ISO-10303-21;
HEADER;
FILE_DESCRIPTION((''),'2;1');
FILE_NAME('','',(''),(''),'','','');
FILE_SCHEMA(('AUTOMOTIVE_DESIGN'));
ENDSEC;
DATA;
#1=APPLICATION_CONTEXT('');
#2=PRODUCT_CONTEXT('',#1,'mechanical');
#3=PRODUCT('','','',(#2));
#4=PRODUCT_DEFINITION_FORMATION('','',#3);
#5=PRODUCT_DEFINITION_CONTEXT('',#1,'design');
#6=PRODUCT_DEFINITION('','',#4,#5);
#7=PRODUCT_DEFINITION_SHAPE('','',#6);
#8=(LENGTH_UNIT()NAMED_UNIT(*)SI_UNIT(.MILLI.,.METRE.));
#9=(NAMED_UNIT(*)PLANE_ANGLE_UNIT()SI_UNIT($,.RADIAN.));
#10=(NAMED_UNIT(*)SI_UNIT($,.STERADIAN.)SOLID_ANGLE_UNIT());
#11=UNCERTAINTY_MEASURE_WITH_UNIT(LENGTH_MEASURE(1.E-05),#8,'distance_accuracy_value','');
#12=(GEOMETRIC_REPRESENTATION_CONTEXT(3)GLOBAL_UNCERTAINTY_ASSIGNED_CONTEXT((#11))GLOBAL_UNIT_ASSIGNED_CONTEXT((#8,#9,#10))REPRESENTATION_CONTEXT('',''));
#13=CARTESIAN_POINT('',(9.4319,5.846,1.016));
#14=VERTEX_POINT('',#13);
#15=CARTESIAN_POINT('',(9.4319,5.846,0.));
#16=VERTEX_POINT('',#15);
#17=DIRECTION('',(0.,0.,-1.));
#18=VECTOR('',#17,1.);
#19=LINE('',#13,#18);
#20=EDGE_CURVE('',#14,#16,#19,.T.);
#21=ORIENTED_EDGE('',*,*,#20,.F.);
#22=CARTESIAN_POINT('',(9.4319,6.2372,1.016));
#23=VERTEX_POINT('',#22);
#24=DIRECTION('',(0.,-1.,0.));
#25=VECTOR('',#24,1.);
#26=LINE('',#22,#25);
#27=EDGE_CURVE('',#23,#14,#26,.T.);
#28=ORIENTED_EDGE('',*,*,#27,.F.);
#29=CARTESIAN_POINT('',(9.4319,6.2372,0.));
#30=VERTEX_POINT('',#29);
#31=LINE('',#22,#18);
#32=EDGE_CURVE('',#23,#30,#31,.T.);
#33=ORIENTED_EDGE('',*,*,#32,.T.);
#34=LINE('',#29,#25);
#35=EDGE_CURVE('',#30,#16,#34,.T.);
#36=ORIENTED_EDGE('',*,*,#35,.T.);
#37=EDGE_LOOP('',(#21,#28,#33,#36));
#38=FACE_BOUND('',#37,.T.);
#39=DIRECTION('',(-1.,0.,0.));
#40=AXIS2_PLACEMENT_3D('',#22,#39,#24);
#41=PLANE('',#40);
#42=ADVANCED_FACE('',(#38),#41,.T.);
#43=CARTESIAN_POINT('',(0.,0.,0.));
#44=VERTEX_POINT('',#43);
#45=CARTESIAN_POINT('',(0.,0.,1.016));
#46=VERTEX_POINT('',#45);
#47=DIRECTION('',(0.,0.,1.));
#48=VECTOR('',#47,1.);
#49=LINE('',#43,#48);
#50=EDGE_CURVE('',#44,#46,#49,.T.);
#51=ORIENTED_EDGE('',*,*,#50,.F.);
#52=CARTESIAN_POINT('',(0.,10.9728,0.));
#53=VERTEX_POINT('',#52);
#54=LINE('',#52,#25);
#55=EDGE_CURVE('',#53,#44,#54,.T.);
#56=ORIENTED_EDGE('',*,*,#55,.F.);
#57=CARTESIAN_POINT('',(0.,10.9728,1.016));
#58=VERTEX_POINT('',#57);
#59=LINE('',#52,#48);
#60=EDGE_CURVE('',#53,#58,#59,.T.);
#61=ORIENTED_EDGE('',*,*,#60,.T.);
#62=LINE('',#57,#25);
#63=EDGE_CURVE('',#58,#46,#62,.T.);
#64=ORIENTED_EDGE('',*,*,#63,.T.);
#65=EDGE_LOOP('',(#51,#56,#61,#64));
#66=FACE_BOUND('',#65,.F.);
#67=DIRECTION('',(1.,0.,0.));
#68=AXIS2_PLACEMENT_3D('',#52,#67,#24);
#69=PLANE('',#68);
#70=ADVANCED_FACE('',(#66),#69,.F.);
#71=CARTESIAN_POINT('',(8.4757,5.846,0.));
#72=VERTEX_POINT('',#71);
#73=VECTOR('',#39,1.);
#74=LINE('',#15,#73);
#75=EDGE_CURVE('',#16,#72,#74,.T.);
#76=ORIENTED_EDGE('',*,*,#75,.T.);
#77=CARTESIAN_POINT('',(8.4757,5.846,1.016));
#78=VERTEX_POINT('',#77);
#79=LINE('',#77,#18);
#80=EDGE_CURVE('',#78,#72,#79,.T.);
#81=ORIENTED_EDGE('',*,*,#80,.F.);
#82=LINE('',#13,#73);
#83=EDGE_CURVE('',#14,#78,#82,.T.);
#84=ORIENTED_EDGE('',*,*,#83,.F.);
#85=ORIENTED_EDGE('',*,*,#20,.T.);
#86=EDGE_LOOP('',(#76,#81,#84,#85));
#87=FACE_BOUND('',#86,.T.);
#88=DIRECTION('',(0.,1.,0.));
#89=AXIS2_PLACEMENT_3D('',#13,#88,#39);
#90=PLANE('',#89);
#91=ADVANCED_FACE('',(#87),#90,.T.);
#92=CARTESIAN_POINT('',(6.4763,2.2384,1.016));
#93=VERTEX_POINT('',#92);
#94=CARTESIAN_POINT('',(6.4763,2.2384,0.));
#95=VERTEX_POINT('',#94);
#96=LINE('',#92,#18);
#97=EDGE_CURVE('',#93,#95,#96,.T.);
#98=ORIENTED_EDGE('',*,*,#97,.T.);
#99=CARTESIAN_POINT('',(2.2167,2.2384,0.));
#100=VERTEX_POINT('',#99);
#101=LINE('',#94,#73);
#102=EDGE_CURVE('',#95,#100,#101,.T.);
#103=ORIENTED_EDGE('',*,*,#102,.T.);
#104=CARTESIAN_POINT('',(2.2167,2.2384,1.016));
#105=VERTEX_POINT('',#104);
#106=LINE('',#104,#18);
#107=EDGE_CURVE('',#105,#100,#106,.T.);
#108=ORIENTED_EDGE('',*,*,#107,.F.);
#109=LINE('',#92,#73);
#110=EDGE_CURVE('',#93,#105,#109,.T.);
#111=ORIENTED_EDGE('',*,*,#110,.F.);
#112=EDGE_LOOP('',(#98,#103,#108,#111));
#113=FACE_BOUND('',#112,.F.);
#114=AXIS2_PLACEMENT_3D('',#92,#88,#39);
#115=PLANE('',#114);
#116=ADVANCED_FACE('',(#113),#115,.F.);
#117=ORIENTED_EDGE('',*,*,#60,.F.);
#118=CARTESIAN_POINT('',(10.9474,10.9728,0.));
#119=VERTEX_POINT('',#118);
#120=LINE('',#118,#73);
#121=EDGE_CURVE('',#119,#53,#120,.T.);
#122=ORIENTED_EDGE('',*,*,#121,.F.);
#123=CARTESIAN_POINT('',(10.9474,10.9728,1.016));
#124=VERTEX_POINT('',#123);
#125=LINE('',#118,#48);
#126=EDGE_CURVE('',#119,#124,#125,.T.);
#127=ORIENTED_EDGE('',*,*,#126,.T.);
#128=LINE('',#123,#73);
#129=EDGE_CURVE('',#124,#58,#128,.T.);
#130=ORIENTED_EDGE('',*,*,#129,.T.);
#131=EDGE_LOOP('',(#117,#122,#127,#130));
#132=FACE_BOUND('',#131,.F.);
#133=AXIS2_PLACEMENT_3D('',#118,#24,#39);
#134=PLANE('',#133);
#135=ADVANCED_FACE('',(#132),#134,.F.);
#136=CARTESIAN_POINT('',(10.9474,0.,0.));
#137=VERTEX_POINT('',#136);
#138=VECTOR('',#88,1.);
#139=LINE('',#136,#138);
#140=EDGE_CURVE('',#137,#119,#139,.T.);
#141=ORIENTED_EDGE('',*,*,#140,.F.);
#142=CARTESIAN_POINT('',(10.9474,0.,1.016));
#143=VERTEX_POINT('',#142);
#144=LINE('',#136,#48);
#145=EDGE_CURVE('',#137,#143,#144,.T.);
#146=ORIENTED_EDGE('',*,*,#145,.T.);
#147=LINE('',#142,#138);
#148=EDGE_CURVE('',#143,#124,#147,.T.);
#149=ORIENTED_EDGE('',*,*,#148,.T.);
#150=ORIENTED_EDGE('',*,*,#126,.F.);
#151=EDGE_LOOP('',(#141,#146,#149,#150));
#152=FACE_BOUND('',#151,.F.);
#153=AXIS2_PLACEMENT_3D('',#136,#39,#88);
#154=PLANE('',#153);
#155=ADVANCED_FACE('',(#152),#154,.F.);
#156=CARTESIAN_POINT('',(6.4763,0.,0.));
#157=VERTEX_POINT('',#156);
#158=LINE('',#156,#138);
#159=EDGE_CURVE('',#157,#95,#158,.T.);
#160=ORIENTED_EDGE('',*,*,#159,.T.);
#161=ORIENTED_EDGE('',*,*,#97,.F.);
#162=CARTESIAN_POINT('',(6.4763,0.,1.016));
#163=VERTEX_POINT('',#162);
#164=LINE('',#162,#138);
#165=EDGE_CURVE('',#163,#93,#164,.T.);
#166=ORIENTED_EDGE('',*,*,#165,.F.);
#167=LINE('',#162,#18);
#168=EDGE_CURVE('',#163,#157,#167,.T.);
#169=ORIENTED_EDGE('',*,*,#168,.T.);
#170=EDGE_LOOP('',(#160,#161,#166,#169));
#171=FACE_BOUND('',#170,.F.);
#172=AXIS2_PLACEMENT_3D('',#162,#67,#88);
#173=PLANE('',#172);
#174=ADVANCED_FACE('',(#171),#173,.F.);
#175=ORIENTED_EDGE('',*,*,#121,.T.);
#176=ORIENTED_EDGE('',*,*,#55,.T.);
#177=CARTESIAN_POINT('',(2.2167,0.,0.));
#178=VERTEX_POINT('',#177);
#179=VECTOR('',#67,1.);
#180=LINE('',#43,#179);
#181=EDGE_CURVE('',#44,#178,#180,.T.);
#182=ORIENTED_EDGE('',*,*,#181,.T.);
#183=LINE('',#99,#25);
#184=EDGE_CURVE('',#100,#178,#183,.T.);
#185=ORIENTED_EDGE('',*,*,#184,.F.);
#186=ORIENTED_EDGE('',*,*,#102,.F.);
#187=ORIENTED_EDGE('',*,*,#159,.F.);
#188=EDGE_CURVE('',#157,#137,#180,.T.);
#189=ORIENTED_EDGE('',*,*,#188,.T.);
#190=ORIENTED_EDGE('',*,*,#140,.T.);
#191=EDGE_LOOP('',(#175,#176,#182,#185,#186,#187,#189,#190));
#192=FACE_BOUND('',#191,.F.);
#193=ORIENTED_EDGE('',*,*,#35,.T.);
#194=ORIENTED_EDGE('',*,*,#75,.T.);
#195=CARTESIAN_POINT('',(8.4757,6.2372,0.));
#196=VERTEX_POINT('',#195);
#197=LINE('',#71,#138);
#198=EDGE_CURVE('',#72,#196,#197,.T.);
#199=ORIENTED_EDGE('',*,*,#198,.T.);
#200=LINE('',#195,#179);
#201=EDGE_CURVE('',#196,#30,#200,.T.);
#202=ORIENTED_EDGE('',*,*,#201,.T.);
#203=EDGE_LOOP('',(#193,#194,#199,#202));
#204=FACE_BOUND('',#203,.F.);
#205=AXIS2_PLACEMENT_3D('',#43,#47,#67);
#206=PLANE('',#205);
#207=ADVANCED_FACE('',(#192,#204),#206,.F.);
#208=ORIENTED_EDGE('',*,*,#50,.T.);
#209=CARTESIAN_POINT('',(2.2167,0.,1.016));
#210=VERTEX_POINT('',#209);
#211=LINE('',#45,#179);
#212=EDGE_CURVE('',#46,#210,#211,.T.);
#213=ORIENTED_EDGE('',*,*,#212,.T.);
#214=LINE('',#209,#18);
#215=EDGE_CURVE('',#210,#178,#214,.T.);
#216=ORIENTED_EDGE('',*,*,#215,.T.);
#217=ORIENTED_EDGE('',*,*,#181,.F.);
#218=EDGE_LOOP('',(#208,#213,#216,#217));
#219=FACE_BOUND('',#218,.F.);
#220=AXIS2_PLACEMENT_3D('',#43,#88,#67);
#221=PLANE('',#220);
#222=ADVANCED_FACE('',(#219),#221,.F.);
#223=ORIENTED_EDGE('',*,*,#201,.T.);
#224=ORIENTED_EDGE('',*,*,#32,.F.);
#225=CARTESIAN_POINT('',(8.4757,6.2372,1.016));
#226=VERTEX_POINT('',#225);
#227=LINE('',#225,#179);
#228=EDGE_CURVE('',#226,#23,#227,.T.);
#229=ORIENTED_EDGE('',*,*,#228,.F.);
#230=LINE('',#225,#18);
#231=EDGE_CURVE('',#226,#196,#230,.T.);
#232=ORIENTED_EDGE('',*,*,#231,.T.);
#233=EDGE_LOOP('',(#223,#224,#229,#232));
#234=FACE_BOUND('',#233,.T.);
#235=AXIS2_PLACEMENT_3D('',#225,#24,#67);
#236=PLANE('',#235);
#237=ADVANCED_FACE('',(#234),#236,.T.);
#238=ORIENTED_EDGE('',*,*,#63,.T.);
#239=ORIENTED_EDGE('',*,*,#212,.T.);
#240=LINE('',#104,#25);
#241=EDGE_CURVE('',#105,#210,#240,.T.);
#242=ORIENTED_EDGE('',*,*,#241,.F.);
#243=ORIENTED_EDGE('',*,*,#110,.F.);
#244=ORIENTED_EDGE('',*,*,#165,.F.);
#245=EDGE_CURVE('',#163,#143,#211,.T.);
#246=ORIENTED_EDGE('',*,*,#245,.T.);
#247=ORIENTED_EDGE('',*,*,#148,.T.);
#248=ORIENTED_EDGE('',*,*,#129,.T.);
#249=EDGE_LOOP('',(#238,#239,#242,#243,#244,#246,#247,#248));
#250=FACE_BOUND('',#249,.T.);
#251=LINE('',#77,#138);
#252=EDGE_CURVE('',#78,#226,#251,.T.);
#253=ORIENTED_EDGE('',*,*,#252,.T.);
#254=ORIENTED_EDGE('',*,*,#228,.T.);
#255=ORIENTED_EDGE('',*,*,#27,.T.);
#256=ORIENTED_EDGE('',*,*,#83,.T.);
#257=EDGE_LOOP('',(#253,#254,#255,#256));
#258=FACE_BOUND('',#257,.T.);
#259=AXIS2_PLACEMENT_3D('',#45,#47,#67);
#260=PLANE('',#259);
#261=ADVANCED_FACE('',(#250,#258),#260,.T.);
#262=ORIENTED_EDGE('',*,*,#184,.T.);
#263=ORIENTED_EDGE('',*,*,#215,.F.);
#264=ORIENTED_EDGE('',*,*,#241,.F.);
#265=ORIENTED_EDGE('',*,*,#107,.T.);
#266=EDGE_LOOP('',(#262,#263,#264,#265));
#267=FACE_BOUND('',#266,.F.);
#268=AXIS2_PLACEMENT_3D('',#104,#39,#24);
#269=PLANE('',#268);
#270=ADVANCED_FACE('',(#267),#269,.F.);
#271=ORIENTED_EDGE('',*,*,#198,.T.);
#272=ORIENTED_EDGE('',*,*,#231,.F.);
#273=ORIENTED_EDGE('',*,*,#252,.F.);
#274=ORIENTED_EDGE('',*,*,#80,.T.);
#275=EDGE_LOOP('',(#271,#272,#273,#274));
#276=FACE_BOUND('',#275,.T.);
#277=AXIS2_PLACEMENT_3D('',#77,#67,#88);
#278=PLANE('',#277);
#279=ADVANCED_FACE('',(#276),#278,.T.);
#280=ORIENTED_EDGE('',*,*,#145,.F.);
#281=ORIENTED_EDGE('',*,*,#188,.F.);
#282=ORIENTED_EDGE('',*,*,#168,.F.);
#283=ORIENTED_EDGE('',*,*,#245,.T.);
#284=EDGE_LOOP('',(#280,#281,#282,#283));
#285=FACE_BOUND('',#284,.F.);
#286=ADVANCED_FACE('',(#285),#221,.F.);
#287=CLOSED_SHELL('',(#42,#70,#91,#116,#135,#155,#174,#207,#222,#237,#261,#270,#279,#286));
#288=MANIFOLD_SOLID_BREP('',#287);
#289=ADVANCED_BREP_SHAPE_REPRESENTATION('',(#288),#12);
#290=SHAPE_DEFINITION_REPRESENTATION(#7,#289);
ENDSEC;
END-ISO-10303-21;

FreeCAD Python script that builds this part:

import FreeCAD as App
import Part
import Sketcher

V = App.Vector
Q = App.Units.Quantity


def add_polygon(sketch, points):
    """Adds a closed chain of lines whose ends are joined by coincident constraints."""
    first, n = sketch.GeometryCount, len(points)
    for a, b in zip(points, points[1:] + points[:1]):
        sketch.addGeometry(Part.LineSegment(App.Vector(*a, 0), App.Vector(*b, 0)), False)
    for i in range(n):
        sketch.addConstraint(Sketcher.Constraint("Coincident", first + i, 2, first + (i + 1) % n, 1))

doc = App.newDocument("Part")
params = doc.addObject("Spreadsheet::Sheet", "Params")
for row, (alias, value) in enumerate([
    ("sketch1_width", "0.431 in"),
    ("sketch1_height", "0.432 in"),
    ("pad1_length", "0.04 in"),
    ("pocket1_length", "0.04 in"),
    ("pocket2_length", "0.04 in"),
], start=1):
    params.set(f"A{row}", alias)
    params.set(f"B{row}", "=" + value)
    params.setAlias(f"B{row}", alias)

body = doc.addObject("PartDesign::Body", "Body")

# Sketch on XY plane
sketch1 = body.newObject("Sketcher::SketchObject", "Sketch")
sketch1.AttachmentSupport = (doc.getObject("XY_Plane"), [""])
sketch1.MapMode = "FlatFace"
add_polygon(sketch1, [(0, 11), (0, 0), (11, 0), (11, 11)])  # lines 0-3
sketch1.addConstraint([
    Sketcher.Constraint("Vertical", 0),
    Sketcher.Constraint("Horizontal", 1),
    Sketcher.Constraint("Vertical", 2),
    Sketcher.Constraint("Horizontal", 3),
    Sketcher.Constraint("Coincident", 0, 2, -1, 1),
    Sketcher.Constraint("DistanceX", 1, 1, 1, 2, Q("0.431 in")),
    Sketcher.Constraint("DistanceY", 0, 2, 0, 1, Q("0.432 in")),
])
sketch1.setExpression("Constraints[9]", "Params.sketch1_width")
sketch1.setExpression("Constraints[10]", "Params.sketch1_height")
pad1 = body.newObject("PartDesign::Pad", "Pad")
pad1.Profile = sketch1
pad1.setExpression("Length", "Params.pad1_length")

# Sketch on XY plane
sketch2 = body.newObject("Sketcher::SketchObject", "Sketch001")
sketch2.AttachmentSupport = (doc.getObject("XY_Plane"), [""])
sketch2.MapMode = "FlatFace"
sketch2.AttachmentOffset = App.Placement(V(0, 0, 0.04 * 25.4), App.Rotation())
add_polygon(sketch2, [(2.2, 2.2), (2.2, 0), (6.5, 0), (6.5, 2.2)])  # lines 0-3
sketch2.addConstraint([
    Sketcher.Constraint("Vertical", 0),
    Sketcher.Constraint("Horizontal", 1),
    Sketcher.Constraint("Vertical", 2),
    Sketcher.Constraint("Horizontal", 3),
    Sketcher.Constraint("PointOnObject", 0, 2, -1),
    Sketcher.Constraint("DistanceX", 1, 1, 1, 2, Q("0.1677 in")),
    Sketcher.Constraint("DistanceY", 0, 2, 0, 1, 2.2384),
    Sketcher.Constraint("DistanceX", -1, 1, 0, 2, 2.2167),
])
pocket1 = body.newObject("PartDesign::Pocket", "Pocket")
pocket1.Profile = sketch2
pocket1.setExpression("Length", "Params.pocket1_length")

# Sketch on XY plane
sketch3 = body.newObject("Sketcher::SketchObject", "Sketch002")
sketch3.AttachmentSupport = (doc.getObject("XY_Plane"), [""])
sketch3.MapMode = "FlatFace"
sketch3.AttachmentOffset = App.Placement(V(0, 0, 0.04 * 25.4), App.Rotation())
add_polygon(sketch3, [(9.43, 6.24), (8.48, 6.24), (8.48, 5.85), (9.43, 5.85)])  # lines 0-3
sketch3.addConstraint([
    Sketcher.Constraint("Horizontal", 0),
    Sketcher.Constraint("Vertical", 1),
    Sketcher.Constraint("Horizontal", 2),
    Sketcher.Constraint("Vertical", 3),
    Sketcher.Constraint("DistanceY", 1, 2, 1, 1, Q("0.0154 in")),
    Sketcher.Constraint("DistanceX", 0, 2, 0, 1, 0.9562),
    Sketcher.Constraint("DistanceX", -1, 1, 0, 2, Q("0.3337 in")),
    Sketcher.Constraint("DistanceY", -1, 1, 0, 2, 6.2372),
])
pocket2 = body.newObject("PartDesign::Pocket", "Pocket001")
pocket2.Profile = sketch3
pocket2.setExpression("Length", "Params.pocket2_length")

doc.recompute()
